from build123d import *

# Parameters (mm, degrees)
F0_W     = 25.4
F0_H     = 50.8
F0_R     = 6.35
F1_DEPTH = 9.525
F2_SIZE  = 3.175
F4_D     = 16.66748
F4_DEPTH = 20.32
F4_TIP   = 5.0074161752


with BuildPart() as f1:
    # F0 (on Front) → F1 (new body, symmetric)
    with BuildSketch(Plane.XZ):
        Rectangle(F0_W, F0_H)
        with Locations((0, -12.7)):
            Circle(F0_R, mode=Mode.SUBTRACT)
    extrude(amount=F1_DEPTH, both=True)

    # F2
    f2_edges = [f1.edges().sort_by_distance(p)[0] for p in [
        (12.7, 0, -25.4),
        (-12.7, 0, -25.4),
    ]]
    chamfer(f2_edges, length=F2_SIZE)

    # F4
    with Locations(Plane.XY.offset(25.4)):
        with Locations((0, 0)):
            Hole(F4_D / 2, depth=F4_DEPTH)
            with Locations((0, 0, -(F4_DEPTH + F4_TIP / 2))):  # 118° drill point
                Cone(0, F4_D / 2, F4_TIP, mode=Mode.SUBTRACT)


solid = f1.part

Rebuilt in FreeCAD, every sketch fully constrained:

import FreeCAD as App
import Part
import Sketcher
from FreeCAD import Vector
Q = App.Units.Quantity


def edges_at(feature, points):
    """Names of the edges that pass closest to the given points."""
    edges = feature.Shape.Edges
    near = lambda p: min(range(len(edges)), key=lambda i: edges[i].distToShape(Part.Vertex(*p))[0])
    return sorted({f"Edge{near(p) + 1}" for p in points})

doc = App.newDocument("Part")
params = doc.addObject("Spreadsheet::Sheet", "Params")
for row, (alias, value) in enumerate([
    ("sketch1_diameter", "0.5 in"),
    ("sketch1_width", "1 in"),
    ("sketch1_height", "2 in"),
    ("pad1_length", "0.75 in"),
    ("chamfer_size", "0.125 in"),
    ("hole_diameter", "0.6562 in"),
    ("hole_depth", "0.8 in"),
], start=1):
    params.set(f"A{row}", alias)
    params.set(f"B{row}", "=" + value)
    params.setAlias(f"B{row}", alias)

body = doc.addObject("PartDesign::Body", "Body")

# Sketch on XZ plane
sketch1 = doc.addObject("Sketcher::SketchObject", "Sketch")
body.addObject(sketch1)
sketch1.AttachmentSupport = (doc.XZ_Plane, [""])
sketch1.MapMode = "FlatFace"
sketch1.addGeometry(Part.LineSegment(Vector(-12.7, 25.4, 0), Vector(-12.7, -25.4, 0)), False)
sketch1.addGeometry(Part.LineSegment(Vector(-12.7, -25.4, 0), Vector(12.7, -25.4, 0)), False)
sketch1.addGeometry(Part.LineSegment(Vector(12.7, -25.4, 0), Vector(12.7, 25.4, 0)), False)
sketch1.addGeometry(Part.LineSegment(Vector(12.7, 25.4, 0), Vector(-12.7, 25.4, 0)), False)
sketch1.addGeometry(Part.Circle(Vector(0, -12.7, 0), Vector(0, 0, 1), 6.35), False)
sketch1.addConstraint(Sketcher.Constraint("Coincident", 0, 2, 1, 1))
sketch1.addConstraint(Sketcher.Constraint("Coincident", 1, 2, 2, 1))
sketch1.addConstraint(Sketcher.Constraint("Coincident", 2, 2, 3, 1))
sketch1.addConstraint(Sketcher.Constraint("Coincident", 3, 2, 0, 1))
sketch1.addConstraint(Sketcher.Constraint("Vertical", 0))
sketch1.addConstraint(Sketcher.Constraint("Horizontal", 1))
sketch1.addConstraint(Sketcher.Constraint("Vertical", 2))
sketch1.addConstraint(Sketcher.Constraint("Horizontal", 3))
sketch1.addConstraint(Sketcher.Constraint("Symmetric", 0, 2, 2, 2, -1, 1))
sketch1.addConstraint(Sketcher.Constraint("PointOnObject", 4, 3, -2))
sketch1.addConstraint(Sketcher.Constraint("Diameter", 4, Q("0.5 in")))
sketch1.addConstraint(Sketcher.Constraint("DistanceX", 1, 1, 1, 2, Q("1 in")))
sketch1.addConstraint(Sketcher.Constraint("DistanceY", 0, 2, 0, 1, Q("2 in")))
sketch1.addConstraint(Sketcher.Constraint("DistanceY", 4, 3, -1, 1, Q("0.5 in")))
sketch1.setExpression("Constraints[10]", "Params.sketch1_diameter")
sketch1.setExpression("Constraints[11]", "Params.sketch1_width")
sketch1.setExpression("Constraints[12]", "Params.sketch1_height")
pad1 = doc.addObject("PartDesign::Pad", "Pad")
body.addObject(pad1)
pad1.Profile = sketch1
pad1.setExpression("Length", "Params.pad1_length")
pad1.Midplane = True
doc.recompute()

chamfer = doc.addObject("PartDesign::Chamfer", "Chamfer")
body.addObject(chamfer)
chamfer.Base = (pad1, edges_at(pad1, [(12.7, 0, -25.4), (-12.7, 0, -25.4)]))
chamfer.setExpression("Size", "Params.chamfer_size")

# Sketch on XY plane
sketch2 = doc.addObject("Sketcher::SketchObject", "Sketch001")
body.addObject(sketch2)
sketch2.AttachmentSupport = (doc.XY_Plane, [""])
sketch2.MapMode = "FlatFace"
sketch2.AttachmentOffset = App.Placement(Vector(0, 0, 1 * 25.4), App.Rotation())
sketch2.addGeometry(Part.Circle(Vector(0, 0, 0), Vector(0, 0, 1), 8.33374), False)
sketch2.addConstraint(Sketcher.Constraint("Coincident", 0, 3, -1, 1))
sketch2.addConstraint(Sketcher.Constraint("Diameter", 0, Q("0.6562 in")))
doc.recompute()
hole = doc.addObject("PartDesign::Hole", "Hole")
body.addObject(hole)
hole.Profile = sketch2
hole.ThreadType = "None"
hole.setExpression("Diameter", "Params.hole_diameter")
hole.DepthType = "Dimension"
hole.setExpression("Depth", "Params.hole_depth")
hole.DrillPoint = "Angled"
hole.DrillPointAngle = 118

doc.recompute()
